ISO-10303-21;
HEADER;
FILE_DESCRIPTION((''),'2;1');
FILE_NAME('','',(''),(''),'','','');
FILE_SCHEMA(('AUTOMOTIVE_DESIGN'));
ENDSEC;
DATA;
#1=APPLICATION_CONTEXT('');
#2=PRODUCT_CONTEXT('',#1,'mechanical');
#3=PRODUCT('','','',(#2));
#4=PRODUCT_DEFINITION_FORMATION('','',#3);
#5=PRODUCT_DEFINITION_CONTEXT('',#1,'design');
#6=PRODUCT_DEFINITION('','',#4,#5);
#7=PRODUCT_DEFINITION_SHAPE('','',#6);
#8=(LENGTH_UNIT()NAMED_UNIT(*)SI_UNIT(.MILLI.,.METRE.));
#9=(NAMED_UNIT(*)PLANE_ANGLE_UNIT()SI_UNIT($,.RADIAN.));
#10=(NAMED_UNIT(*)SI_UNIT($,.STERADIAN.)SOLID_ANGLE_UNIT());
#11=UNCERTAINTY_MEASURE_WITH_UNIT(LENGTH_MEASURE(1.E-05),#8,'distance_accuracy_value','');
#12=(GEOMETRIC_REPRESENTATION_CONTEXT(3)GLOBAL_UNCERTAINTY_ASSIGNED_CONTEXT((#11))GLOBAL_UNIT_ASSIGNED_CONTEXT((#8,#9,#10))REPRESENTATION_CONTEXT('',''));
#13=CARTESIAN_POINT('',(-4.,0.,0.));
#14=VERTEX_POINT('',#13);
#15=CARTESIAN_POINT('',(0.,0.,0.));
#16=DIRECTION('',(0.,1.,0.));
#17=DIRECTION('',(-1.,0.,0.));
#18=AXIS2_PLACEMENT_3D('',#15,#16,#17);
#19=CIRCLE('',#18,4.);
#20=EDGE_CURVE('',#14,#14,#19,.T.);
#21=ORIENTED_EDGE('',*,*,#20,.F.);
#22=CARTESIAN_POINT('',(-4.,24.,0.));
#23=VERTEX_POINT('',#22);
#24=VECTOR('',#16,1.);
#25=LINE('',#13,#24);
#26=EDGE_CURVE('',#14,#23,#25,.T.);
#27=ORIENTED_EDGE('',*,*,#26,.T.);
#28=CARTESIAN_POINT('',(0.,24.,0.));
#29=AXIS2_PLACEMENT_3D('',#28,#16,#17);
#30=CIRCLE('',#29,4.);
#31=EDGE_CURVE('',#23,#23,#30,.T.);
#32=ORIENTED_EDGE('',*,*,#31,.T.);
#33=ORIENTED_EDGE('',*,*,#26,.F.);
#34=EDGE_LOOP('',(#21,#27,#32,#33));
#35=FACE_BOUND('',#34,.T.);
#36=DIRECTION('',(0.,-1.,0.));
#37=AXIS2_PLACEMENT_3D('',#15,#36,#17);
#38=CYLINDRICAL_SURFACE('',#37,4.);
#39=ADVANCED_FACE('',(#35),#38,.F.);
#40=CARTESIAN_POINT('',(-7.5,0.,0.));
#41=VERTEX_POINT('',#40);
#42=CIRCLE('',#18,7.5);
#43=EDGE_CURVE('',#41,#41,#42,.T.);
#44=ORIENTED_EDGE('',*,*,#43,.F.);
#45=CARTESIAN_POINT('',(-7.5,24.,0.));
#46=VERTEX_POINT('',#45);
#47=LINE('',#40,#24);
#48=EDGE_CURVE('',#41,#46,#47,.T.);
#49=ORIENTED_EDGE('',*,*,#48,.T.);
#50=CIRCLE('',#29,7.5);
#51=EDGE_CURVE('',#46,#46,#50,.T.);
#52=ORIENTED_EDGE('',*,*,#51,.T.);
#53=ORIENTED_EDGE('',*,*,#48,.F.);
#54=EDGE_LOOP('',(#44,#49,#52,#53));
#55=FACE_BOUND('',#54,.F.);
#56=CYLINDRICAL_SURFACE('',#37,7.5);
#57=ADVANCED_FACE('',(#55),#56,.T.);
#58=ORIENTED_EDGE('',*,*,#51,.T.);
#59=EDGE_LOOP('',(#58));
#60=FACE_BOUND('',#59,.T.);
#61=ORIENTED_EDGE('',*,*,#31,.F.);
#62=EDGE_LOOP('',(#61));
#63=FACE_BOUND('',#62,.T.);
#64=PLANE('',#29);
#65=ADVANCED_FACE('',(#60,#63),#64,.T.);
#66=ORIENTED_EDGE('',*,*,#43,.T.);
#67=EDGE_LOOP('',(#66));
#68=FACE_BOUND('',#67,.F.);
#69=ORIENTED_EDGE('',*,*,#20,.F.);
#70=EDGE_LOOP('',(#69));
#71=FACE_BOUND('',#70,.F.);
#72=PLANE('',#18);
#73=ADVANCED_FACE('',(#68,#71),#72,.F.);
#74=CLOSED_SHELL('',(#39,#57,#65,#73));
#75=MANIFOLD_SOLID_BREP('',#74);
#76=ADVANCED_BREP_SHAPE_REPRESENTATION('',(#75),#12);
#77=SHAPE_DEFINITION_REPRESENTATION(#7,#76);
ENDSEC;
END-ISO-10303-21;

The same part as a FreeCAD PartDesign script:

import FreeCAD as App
import Part
import Sketcher
from FreeCAD import Vector

doc = App.newDocument("Part")
body = doc.addObject("PartDesign::Body", "Body")

sketch1 = doc.addObject("Sketcher::SketchObject", "Sketch")
body.addObject(sketch1)
sketch1.AttachmentSupport = (doc.XZ_Plane, [""])
sketch1.MapMode = "FlatFace"
sketch1.addGeometry([
    Part.Circle(Vector(0, 0, 0), Vector(0, 0, 1), 7.5),
    Part.Circle(Vector(0, 0, 0), Vector(0, 0, 1), 4),
], False)
sketch1.addConstraint([
    Sketcher.Constraint("Coincident", 0, 3, -1, 1),
    Sketcher.Constraint("Coincident", 1, 3, -1, 1),
    Sketcher.Constraint("Diameter", 0, 15.0),
    Sketcher.Constraint("Diameter", 1, 8.0),
])
pad1 = doc.addObject("PartDesign::Pad", "Pad")
body.addObject(pad1)
pad1.Profile = sketch1
pad1.Length = 24
pad1.Reversed = True

doc.recompute()
